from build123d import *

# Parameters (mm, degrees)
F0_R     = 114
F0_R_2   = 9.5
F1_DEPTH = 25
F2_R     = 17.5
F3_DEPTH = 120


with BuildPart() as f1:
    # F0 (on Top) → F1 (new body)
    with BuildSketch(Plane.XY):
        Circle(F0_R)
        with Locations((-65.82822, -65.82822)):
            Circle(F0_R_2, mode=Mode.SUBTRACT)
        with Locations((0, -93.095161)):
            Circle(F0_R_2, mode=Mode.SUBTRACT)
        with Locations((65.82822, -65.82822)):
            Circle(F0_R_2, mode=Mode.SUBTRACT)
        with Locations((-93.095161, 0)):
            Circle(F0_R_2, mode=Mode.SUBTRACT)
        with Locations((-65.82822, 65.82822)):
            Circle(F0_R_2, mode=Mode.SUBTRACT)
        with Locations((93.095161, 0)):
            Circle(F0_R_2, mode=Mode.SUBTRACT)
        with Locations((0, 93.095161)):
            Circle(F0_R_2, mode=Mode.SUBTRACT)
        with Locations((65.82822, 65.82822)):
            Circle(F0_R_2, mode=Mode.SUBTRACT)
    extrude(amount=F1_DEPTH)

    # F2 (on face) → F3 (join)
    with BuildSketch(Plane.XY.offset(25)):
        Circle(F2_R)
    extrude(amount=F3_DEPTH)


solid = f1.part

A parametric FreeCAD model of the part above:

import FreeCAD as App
import Part
import Sketcher

V = App.Vector

doc = App.newDocument("Part")
body = doc.addObject("PartDesign::Body", "Body")

# Sketch on XY plane
sketch1 = body.newObject("Sketcher::SketchObject", "Sketch")
sketch1.AttachmentSupport = (doc.getObject("XY_Plane"), [""])
sketch1.MapMode = "FlatFace"
sketch1.addGeometry([
    Part.Circle(V(0, 0, 0), V(0, 0, 1), 114),  # 0
    Part.Circle(V(-65.82822, -65.82822, 0), V(0, 0, 1), 9.5),  # 1
    Part.Circle(V(0, -93.095161, 0), V(0, 0, 1), 9.5),  # 2
    Part.Circle(V(65.82822, -65.82822, 0), V(0, 0, 1), 9.5),  # 3
    Part.Circle(V(-93.095161, 0, 0), V(0, 0, 1), 9.5),  # 4
    Part.Circle(V(-65.82822, 65.82822, 0), V(0, 0, 1), 9.5),  # 5
    Part.Circle(V(93.095161, 0, 0), V(0, 0, 1), 9.5),  # 6
    Part.Circle(V(0, 93.095161, 0), V(0, 0, 1), 9.5),  # 7
    Part.Circle(V(65.82822, 65.82822, 0), V(0, 0, 1), 9.5),  # 8
], False)
sketch1.addConstraint([
    Sketcher.Constraint("Coincident", 0, 3, -1, 1),
    Sketcher.Constraint("Equal", 1, 2),
    Sketcher.Constraint("Equal", 2, 3),
    Sketcher.Constraint("Equal", 3, 4),
    Sketcher.Constraint("Equal", 4, 5),
    Sketcher.Constraint("Equal", 5, 6),
    Sketcher.Constraint("Equal", 6, 7),
    Sketcher.Constraint("Equal", 7, 8),
    Sketcher.Constraint("Symmetric", 3, 3, 5, 3, -1, 1),
    Sketcher.Constraint("Symmetric", 4, 3, 6, 3, -1, 1),
    Sketcher.Constraint("Symmetric", 2, 3, 7, 3, -1, 1),
    Sketcher.Constraint("Symmetric", 1, 3, 8, 3, -1, 1),
    Sketcher.Constraint("Symmetric", 1, 3, 3, 3, -2),
    Sketcher.Constraint("PointOnObject", 2, 3, -2),
    Sketcher.Constraint("PointOnObject", 4, 3, -1),
    Sketcher.Constraint("Diameter", 0, 228.0),
    Sketcher.Constraint("Diameter", 1, 19.0),
    Sketcher.Constraint("DistanceX", 1, 3, -1, 1, 65.82822),
    Sketcher.Constraint("DistanceY", 1, 3, -1, 1, 65.82822),
    Sketcher.Constraint("DistanceY", 2, 3, -1, 1, 93.095161),
    Sketcher.Constraint("DistanceX", 4, 3, -1, 1, 93.095161),
])
pad1 = body.newObject("PartDesign::Pad", "Pad")
pad1.Profile = sketch1
pad1.Length = 25

# Sketch on XY plane
sketch2 = body.newObject("Sketcher::SketchObject", "Sketch001")
sketch2.AttachmentSupport = (doc.getObject("XY_Plane"), [""])
sketch2.MapMode = "FlatFace"
sketch2.AttachmentOffset = App.Placement(V(0, 0, 25), App.Rotation())
sketch2.addGeometry(Part.Circle(V(0, 0, 0), V(0, 0, 1), 17.5), False)
sketch2.addConstraint([
    Sketcher.Constraint("Coincident", 0, 3, -1, 1),
    Sketcher.Constraint("Diameter", 0, 35.0),
])
pad2 = body.newObject("PartDesign::Pad", "Pad001")
pad2.Profile = sketch2
pad2.Length = 120

doc.recompute()
